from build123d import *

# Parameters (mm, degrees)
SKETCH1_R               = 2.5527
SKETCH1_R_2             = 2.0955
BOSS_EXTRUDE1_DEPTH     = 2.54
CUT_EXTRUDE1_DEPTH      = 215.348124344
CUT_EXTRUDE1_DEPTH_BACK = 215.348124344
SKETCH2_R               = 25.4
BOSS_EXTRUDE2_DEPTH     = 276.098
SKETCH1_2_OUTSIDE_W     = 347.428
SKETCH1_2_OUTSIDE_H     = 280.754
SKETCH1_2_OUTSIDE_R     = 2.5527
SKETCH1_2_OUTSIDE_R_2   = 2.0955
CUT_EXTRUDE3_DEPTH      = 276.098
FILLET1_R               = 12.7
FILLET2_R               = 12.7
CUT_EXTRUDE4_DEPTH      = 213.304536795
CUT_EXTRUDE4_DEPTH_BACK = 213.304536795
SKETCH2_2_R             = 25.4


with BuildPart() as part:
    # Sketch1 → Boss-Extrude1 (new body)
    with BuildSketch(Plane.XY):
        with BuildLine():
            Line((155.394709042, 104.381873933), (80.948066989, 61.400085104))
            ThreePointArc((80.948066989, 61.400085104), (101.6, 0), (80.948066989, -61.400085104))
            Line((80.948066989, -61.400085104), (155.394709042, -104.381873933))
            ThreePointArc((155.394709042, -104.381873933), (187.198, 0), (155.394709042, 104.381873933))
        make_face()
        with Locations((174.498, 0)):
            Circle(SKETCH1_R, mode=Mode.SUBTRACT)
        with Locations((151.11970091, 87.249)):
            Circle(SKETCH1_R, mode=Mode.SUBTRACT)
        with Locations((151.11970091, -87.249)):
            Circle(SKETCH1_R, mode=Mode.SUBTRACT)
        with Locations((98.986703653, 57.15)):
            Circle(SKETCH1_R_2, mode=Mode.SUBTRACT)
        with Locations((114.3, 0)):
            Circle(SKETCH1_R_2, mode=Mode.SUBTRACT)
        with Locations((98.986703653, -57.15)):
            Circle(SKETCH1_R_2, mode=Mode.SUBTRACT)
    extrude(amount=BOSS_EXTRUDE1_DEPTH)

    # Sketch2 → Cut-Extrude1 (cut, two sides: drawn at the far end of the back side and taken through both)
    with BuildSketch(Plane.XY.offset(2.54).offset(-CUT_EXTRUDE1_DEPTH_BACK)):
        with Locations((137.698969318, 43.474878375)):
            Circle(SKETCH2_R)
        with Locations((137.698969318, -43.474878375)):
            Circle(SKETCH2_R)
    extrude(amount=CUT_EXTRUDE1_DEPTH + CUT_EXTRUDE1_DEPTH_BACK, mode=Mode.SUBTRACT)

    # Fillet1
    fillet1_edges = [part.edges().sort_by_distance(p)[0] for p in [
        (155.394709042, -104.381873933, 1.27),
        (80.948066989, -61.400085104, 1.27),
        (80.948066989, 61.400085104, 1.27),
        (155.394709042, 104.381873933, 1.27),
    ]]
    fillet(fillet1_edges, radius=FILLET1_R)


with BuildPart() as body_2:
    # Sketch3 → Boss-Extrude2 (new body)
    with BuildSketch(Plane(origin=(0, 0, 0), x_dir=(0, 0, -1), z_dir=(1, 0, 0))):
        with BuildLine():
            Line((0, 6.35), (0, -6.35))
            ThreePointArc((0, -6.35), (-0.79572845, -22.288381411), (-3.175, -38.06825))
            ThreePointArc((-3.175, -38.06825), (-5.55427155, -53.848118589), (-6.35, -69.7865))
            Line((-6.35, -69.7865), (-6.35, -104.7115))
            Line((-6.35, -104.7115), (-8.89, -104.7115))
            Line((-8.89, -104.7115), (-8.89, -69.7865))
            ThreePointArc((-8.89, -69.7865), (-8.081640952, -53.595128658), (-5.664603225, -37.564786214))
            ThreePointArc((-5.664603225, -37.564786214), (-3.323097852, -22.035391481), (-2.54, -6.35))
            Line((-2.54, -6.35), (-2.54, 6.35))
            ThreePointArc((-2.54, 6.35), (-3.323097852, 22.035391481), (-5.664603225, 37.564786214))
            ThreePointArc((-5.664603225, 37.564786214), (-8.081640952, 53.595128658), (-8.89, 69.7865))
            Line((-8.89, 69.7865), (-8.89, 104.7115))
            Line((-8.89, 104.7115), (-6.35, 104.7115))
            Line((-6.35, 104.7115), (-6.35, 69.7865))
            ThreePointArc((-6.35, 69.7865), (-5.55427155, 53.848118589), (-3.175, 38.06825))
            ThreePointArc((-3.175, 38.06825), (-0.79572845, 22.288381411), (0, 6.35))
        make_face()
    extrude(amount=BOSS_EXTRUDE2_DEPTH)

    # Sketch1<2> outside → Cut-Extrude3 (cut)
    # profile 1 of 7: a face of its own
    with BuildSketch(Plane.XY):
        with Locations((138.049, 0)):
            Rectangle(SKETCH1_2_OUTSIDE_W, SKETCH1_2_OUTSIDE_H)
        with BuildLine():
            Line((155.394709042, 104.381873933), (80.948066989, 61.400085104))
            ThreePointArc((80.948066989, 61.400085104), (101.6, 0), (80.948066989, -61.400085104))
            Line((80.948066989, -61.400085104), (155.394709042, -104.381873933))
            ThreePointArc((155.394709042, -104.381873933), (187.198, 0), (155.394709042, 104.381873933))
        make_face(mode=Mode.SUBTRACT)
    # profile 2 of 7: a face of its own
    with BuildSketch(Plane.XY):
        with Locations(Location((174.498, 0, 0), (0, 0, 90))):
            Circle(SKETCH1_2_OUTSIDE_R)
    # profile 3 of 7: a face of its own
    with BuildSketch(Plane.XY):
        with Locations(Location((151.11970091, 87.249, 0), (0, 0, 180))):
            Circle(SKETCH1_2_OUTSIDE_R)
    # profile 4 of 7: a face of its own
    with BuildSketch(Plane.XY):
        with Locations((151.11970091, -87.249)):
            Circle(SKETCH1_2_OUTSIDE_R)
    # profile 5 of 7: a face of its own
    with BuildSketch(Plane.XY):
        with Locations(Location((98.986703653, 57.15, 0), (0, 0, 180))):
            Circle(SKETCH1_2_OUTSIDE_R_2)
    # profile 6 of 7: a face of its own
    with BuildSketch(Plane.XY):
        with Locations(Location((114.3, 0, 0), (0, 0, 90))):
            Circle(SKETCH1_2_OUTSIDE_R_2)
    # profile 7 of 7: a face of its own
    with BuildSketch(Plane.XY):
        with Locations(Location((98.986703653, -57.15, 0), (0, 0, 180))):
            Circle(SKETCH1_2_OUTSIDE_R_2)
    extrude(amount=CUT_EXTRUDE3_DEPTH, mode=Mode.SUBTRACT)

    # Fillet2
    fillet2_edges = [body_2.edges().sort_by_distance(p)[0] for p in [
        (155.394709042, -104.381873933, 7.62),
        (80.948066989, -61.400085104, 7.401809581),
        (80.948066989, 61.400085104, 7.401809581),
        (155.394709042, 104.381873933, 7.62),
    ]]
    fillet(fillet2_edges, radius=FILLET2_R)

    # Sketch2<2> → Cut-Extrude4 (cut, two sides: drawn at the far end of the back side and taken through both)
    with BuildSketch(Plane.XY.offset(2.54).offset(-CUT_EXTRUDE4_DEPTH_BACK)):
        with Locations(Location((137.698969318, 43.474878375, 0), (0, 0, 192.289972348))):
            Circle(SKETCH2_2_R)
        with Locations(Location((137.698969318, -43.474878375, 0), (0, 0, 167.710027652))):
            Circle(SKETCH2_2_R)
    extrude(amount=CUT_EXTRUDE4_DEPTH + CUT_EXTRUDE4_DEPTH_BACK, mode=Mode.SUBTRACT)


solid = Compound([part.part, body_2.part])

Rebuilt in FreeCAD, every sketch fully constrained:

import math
import FreeCAD as App
import Part
import Sketcher

V = App.Vector
Q = App.Units.Quantity


def edges_at(feature, points):
    """Names of the edges that pass closest to the given points."""
    edges = feature.Shape.Edges
    near = lambda p: min(range(len(edges)), key=lambda i: edges[i].distToShape(Part.Vertex(*p))[0])
    return sorted({f"Edge{near(p) + 1}" for p in points})

doc = App.newDocument("Part")
body = doc.addObject("PartDesign::Body", "Body")

sketch1 = body.newObject("Sketcher::SketchObject", "Sketch")
sketch1.AttachmentSupport = (doc.getObject("XY_Plane"), [""])
sketch1.MapMode = "FlatFace"
sketch1.addGeometry(Part.LineSegment(V(155.4, 104.4, 0), V(80.9, 61.4, 0)), False)
sketch1.addGeometry(Part.ArcOfCircle(Part.Circle(V(0, 0, 0), V(0, 0, 1), 101.6), math.radians(-37), math.radians(37)), False)
sketch1.addGeometry(Part.LineSegment(V(80.9, -61.4, 0), V(155.4, -104.4, 0)), False)
sketch1.addGeometry(Part.ArcOfCircle(Part.Circle(V(0, 0, 0), V(0, 0, 1), 187.2), math.radians(-34), math.radians(34)), False)
sketch1.addGeometry(Part.Circle(V(99, -57.1, 0), V(0, 0, 1), 2.1), False)
sketch1.addGeometry(Part.Circle(V(151.1, -87.2, 0), V(0, 0, 1), 2.6), False)
sketch1.addGeometry(Part.Circle(V(114.3, 0, 0), V(0, 0, 1), 2.1), False)
sketch1.addGeometry(Part.Circle(V(99, 57.1, 0), V(0, 0, 1), 2.1), False)
sketch1.addGeometry(Part.Circle(V(174.5, 0, 0), V(0, 0, 1), 2.6), False)
sketch1.addGeometry(Part.Circle(V(151.1, 87.2, 0), V(0, 0, 1), 2.6), False)
sketch1.addConstraint(Sketcher.Constraint("Coincident", 0, 2, 1, 2))
sketch1.addConstraint(Sketcher.Constraint("Coincident", 1, 1, 2, 1))
sketch1.addConstraint(Sketcher.Constraint("Coincident", 2, 2, 3, 1))
sketch1.addConstraint(Sketcher.Constraint("Coincident", 3, 2, 0, 1))
sketch1.addConstraint(Sketcher.Constraint("Coincident", 1, 3, -1, 1))
sketch1.addConstraint(Sketcher.Constraint("Coincident", 3, 3, -1, 1))
sketch1.addConstraint(Sketcher.Constraint("Equal", 4, 6))
sketch1.addConstraint(Sketcher.Constraint("Equal", 6, 7))
sketch1.addConstraint(Sketcher.Constraint("Equal", 5, 8))
sketch1.addConstraint(Sketcher.Constraint("Equal", 8, 9))
sketch1.addConstraint(Sketcher.Constraint("Symmetric", 4, 3, 7, 3, -1))
sketch1.addConstraint(Sketcher.Constraint("Symmetric", 5, 3, 9, 3, -1))
sketch1.addConstraint(Sketcher.Constraint("PointOnObject", 6, 3, -1))
sketch1.addConstraint(Sketcher.Constraint("PointOnObject", 8, 3, -1))
sketch1.addConstraint(Sketcher.Constraint("Vertical", 0, 2, 1, 1))
sketch1.addConstraint(Sketcher.Constraint("Vertical", 2, 2, 3, 2))
sketch1.addConstraint(Sketcher.Constraint("Radius", 1, Q("4 in")))
sketch1.addConstraint(Sketcher.Constraint("Radius", 3, Q("7.37 in")))
sketch1.addConstraint(Sketcher.Constraint("Diameter", 4, Q("0.165 in")))
sketch1.addConstraint(Sketcher.Constraint("Diameter", 5, Q("0.201 in")))
sketch1.addConstraint(Sketcher.Constraint("Angle", 0, Q("-150 deg")))
sketch1.addConstraint(Sketcher.Constraint("DistanceX", -1, 1, 6, 3, Q("4.5 in")))
sketch1.addConstraint(Sketcher.Constraint("DistanceY", 4, 3, 7, 3, Q("4.5 in")))
sketch1.addConstraint(Sketcher.Constraint("DistanceX", -1, 1, 8, 3, Q("6.87 in")))
sketch1.addConstraint(Sketcher.Constraint("DistanceY", 5, 3, 9, 3, Q("6.87 in")))
sketch1.addConstraint(Sketcher.Constraint("DistanceX", -1, 1, 5, 3, 151.119701))
sketch1.addConstraint(Sketcher.Constraint("DistanceX", -1, 1, 2, 2, 155.394709))
sketch1.addConstraint(Sketcher.Constraint("DistanceX", -1, 1, 4, 3, 98.986704))
pad1 = body.newObject("PartDesign::Pad", "Pad")
pad1.Profile = sketch1
pad1.Length = Q("0.1 in")

sketch2 = body.newObject("Sketcher::SketchObject", "Sketch001")
sketch2.AttachmentSupport = (doc.getObject("XY_Plane"), [""])
sketch2.MapMode = "FlatFace"
sketch2.AttachmentOffset = App.Placement(V(0, 0, 0.1 * 25.4), App.Rotation())
sketch2.addGeometry(Part.Circle(V(138, 43, 0), V(0, 0, 1), 25), False)
sketch2.addGeometry(Part.Circle(V(138, -43, 0), V(0, 0, 1), 25), False)
sketch2.addConstraint(Sketcher.Constraint("Equal", 0, 1))
sketch2.addConstraint(Sketcher.Constraint("Symmetric", 0, 3, 1, 3, -1))
sketch2.addConstraint(Sketcher.Constraint("Diameter", 0, Q("2 in")))
sketch2.addConstraint(Sketcher.Constraint("DistanceX", -1, 1, 0, 3, 137.698969))
sketch2.addConstraint(Sketcher.Constraint("DistanceY", -1, 1, 0, 3, 43.474878))
pocket1 = body.newObject("PartDesign::Pocket", "Pocket")
pocket1.Profile = sketch2
pocket1.Type = "ThroughAll"
pocket1.Midplane = True
doc.recompute()

fillet = body.newObject("PartDesign::Fillet", "Fillet")
fillet.Base = (pocket1, edges_at(pocket1, [
    (155.395, -104.382, 1.27),
    (80.948, -61.4, 1.27),
    (80.948, 61.4, 1.27),
    (155.395, 104.382, 1.27),
]))
fillet.Radius = Q("0.5 in")
body2 = doc.addObject("PartDesign::Body", "Body001")

sketch3 = body2.newObject("Sketcher::SketchObject", "Sketch002")
sketch3.AttachmentSupport = (doc.getObject("YZ_Plane001"), [""])
sketch3.MapMode = "FlatFace"
sketch3.addGeometry(Part.LineSegment(V(-6.3, 0, 0), V(6.3, 0, 0)), False)
sketch3.addGeometry(Part.ArcOfCircle(Part.Circle(V(6.3, 160, 0), V(0, 0, 1), 160), math.radians(-90), math.radians(-78.57)), False)
sketch3.addGeometry(Part.ArcOfCircle(Part.Circle(V(69.8, -153.7, 0), V(0, 0, 1), 160), math.radians(90), math.radians(101.43)), False)
sketch3.addGeometry(Part.LineSegment(V(69.8, 6.3, 0), V(104.7, 6.3, 0)), False)
sketch3.addGeometry(Part.LineSegment(V(104.7, 6.3, 0), V(104.7, 8.9, 0)), False)
sketch3.addGeometry(Part.LineSegment(V(104.7, 8.9, 0), V(69.8, 8.9, 0)), False)
sketch3.addGeometry(Part.ArcOfCircle(Part.Circle(V(69.8, -153.7, 0), V(0, 0, 1), 162.6), math.radians(90), math.radians(101.43)), False)
sketch3.addGeometry(Part.ArcOfCircle(Part.Circle(V(6.4, 160, 0), V(0, 0, 1), 157.5), math.radians(-90), math.radians(-78.57)), False)
sketch3.addGeometry(Part.LineSegment(V(6.3, 2.5, 0), V(-6.3, 2.5, 0)), False)
sketch3.addGeometry(Part.ArcOfCircle(Part.Circle(V(-6.4, 160, 0), V(0, 0, 1), 157.5), math.radians(-101.43), math.radians(-90)), False)
sketch3.addGeometry(Part.ArcOfCircle(Part.Circle(V(-69.8, -153.7, 0), V(0, 0, 1), 162.6), math.radians(78.57), math.radians(90)), False)
sketch3.addGeometry(Part.LineSegment(V(-69.8, 8.9, 0), V(-104.7, 8.9, 0)), False)
sketch3.addGeometry(Part.LineSegment(V(-104.7, 8.9, 0), V(-104.7, 6.3, 0)), False)
sketch3.addGeometry(Part.LineSegment(V(-104.7, 6.3, 0), V(-69.8, 6.3, 0)), False)
sketch3.addGeometry(Part.ArcOfCircle(Part.Circle(V(-69.8, -153.7, 0), V(0, 0, 1), 160), math.radians(78.57), math.radians(90)), False)
sketch3.addGeometry(Part.ArcOfCircle(Part.Circle(V(-6.3, 160, 0), V(0, 0, 1), 160), math.radians(-101.43), math.radians(-90)), False)
sketch3.addConstraint(Sketcher.Constraint("Tangent", 0, 2, 1, 1))
sketch3.addConstraint(Sketcher.Constraint("Tangent", 1, 2, 2, 2))
sketch3.addConstraint(Sketcher.Constraint("Tangent", 2, 1, 3, 1))
sketch3.addConstraint(Sketcher.Constraint("Coincident", 3, 2, 4, 1))
sketch3.addConstraint(Sketcher.Constraint("Coincident", 4, 2, 5, 1))
sketch3.addConstraint(Sketcher.Constraint("Tangent", 5, 2, 6, 1))
sketch3.addConstraint(Sketcher.Constraint("Tangent", 6, 2, 7, 2))
sketch3.addConstraint(Sketcher.Constraint("Tangent", 7, 1, 8, 1))
sketch3.addConstraint(Sketcher.Constraint("Tangent", 8, 2, 9, 2))
sketch3.addConstraint(Sketcher.Constraint("Tangent", 9, 1, 10, 1))
sketch3.addConstraint(Sketcher.Constraint("Tangent", 10, 2, 11, 1))
sketch3.addConstraint(Sketcher.Constraint("Coincident", 11, 2, 12, 1))
sketch3.addConstraint(Sketcher.Constraint("Coincident", 12, 2, 13, 1))
sketch3.addConstraint(Sketcher.Constraint("Tangent", 13, 2, 14, 2))
sketch3.addConstraint(Sketcher.Constraint("Tangent", 14, 1, 15, 1))
sketch3.addConstraint(Sketcher.Constraint("Tangent", 15, 2, 0, 1))
sketch3.addConstraint(Sketcher.Constraint("Horizontal", 0))
sketch3.addConstraint(Sketcher.Constraint("Horizontal", 3))
sketch3.addConstraint(Sketcher.Constraint("Vertical", 4))
sketch3.addConstraint(Sketcher.Constraint("Horizontal", 5))
sketch3.addConstraint(Sketcher.Constraint("Horizontal", 8))
sketch3.addConstraint(Sketcher.Constraint("Horizontal", 11))
sketch3.addConstraint(Sketcher.Constraint("Vertical", 12))
sketch3.addConstraint(Sketcher.Constraint("Horizontal", 13))
sketch3.addConstraint(Sketcher.Constraint("Coincident", 6, 3, 2, 3))
sketch3.addConstraint(Sketcher.Constraint("Coincident", 7, 3, 1, 3))
sketch3.addConstraint(Sketcher.Constraint("Coincident", 14, 3, 10, 3))
sketch3.addConstraint(Sketcher.Constraint("Coincident", 15, 3, 9, 3))
sketch3.addConstraint(Sketcher.Constraint("Equal", 1, 2))
sketch3.addConstraint(Sketcher.Constraint("Equal", 7, 9))
sketch3.addConstraint(Sketcher.Constraint("Equal", 6, 10))
sketch3.addConstraint(Sketcher.Constraint("Symmetric", 0, 2, 15, 2, -1, 1))
sketch3.addConstraint(Sketcher.Constraint("Symmetric", 4, 2, 11, 2, -2))
sketch3.addConstraint(Sketcher.Constraint("DistanceX", 0, 1, 0, 2, Q("0.5 in")))
sketch3.addConstraint(Sketcher.Constraint("DistanceY", 4, 1, 4, 2, Q("0.1 in")))
sketch3.addConstraint(Sketcher.Constraint("DistanceX", 3, 1, 3, 2, Q("1.375 in")))
sketch3.addConstraint(Sketcher.Constraint("DistanceY", -1, 1, 2, 1, Q("0.25 in")))
sketch3.addConstraint(Sketcher.Constraint("Radius", 1, 160.020159))
pad2 = body2.newObject("PartDesign::Pad", "Pad001")
pad2.Profile = sketch3
pad2.Length = Q("10.87 in")

sketch4 = body2.newObject("Sketcher::SketchObject", "Sketch003")
sketch4.AttachmentSupport = (doc.getObject("XY_Plane001"), [""])
sketch4.MapMode = "FlatFace"
sketch4.addGeometry(Part.LineSegment(V(-35.7, 140.4, 0), V(-35.7, -140.4, 0)), False)
sketch4.addGeometry(Part.LineSegment(V(-35.7, -140.4, 0), V(311.8, -140.4, 0)), False)
sketch4.addGeometry(Part.LineSegment(V(311.8, -140.4, 0), V(311.8, 140.4, 0)), False)
sketch4.addGeometry(Part.LineSegment(V(311.8, 140.4, 0), V(-35.7, 140.4, 0)), False)
sketch4.addGeometry(Part.LineSegment(V(80.9, 61.4, 0), V(155.4, 104.4, 0)), False)
sketch4.addGeometry(Part.ArcOfCircle(Part.Circle(V(0, 0, 0), V(0, 0, 1), 187.2), math.radians(-34), math.radians(34)), False)
sketch4.addGeometry(Part.LineSegment(V(155.4, -104.4, 0), V(80.9, -61.4, 0)), False)
sketch4.addGeometry(Part.ArcOfCircle(Part.Circle(V(0, 0, 0), V(0, 0, 1), 101.6), math.radians(-37), math.radians(37)), False)
sketch4.addGeometry(Part.Circle(V(174.5, 0, 0), V(0, 0, 1), 2.6), False)
sketch4.addGeometry(Part.Circle(V(151.1, 87.2, 0), V(0, 0, 1), 2.6), False)
sketch4.addGeometry(Part.Circle(V(151.1, -87.2, 0), V(0, 0, 1), 2.6), False)
sketch4.addGeometry(Part.Circle(V(99, 57.1, 0), V(0, 0, 1), 2.1), False)
sketch4.addGeometry(Part.Circle(V(114.3, 0, 0), V(0, 0, 1), 2.1), False)
sketch4.addGeometry(Part.Circle(V(99, -57.1, 0), V(0, 0, 1), 2.1), False)
sketch4.addConstraint(Sketcher.Constraint("Coincident", 0, 2, 1, 1))
sketch4.addConstraint(Sketcher.Constraint("Coincident", 1, 2, 2, 1))
sketch4.addConstraint(Sketcher.Constraint("Coincident", 2, 2, 3, 1))
sketch4.addConstraint(Sketcher.Constraint("Coincident", 3, 2, 0, 1))
sketch4.addConstraint(Sketcher.Constraint("Coincident", 4, 2, 5, 2))
sketch4.addConstraint(Sketcher.Constraint("Coincident", 5, 1, 6, 1))
sketch4.addConstraint(Sketcher.Constraint("Coincident", 6, 2, 7, 1))
sketch4.addConstraint(Sketcher.Constraint("Coincident", 7, 2, 4, 1))
sketch4.addConstraint(Sketcher.Constraint("Vertical", 0))
sketch4.addConstraint(Sketcher.Constraint("Horizontal", 1))
sketch4.addConstraint(Sketcher.Constraint("Vertical", 2))
sketch4.addConstraint(Sketcher.Constraint("Horizontal", 3))
sketch4.addConstraint(Sketcher.Constraint("Coincident", 5, 3, -1, 1))
sketch4.addConstraint(Sketcher.Constraint("Coincident", 7, 3, -1, 1))
sketch4.addConstraint(Sketcher.Constraint("Equal", 8, 9))
sketch4.addConstraint(Sketcher.Constraint("Equal", 9, 10))
sketch4.addConstraint(Sketcher.Constraint("Equal", 11, 12))
sketch4.addConstraint(Sketcher.Constraint("Equal", 12, 13))
sketch4.addConstraint(Sketcher.Constraint("Symmetric", 9, 3, 10, 3, -1))
sketch4.addConstraint(Sketcher.Constraint("Symmetric", 11, 3, 13, 3, -1))
sketch4.addConstraint(Sketcher.Constraint("PointOnObject", 8, 3, -1))
sketch4.addConstraint(Sketcher.Constraint("PointOnObject", 12, 3, -1))
sketch4.addConstraint(Sketcher.Constraint("Vertical", 4, 2, 5, 1))
sketch4.addConstraint(Sketcher.Constraint("Vertical", 6, 2, 7, 2))
sketch4.addConstraint(Sketcher.Constraint("Radius", 7, Q("4 in")))
sketch4.addConstraint(Sketcher.Constraint("Radius", 5, Q("7.37 in")))
sketch4.addConstraint(Sketcher.Constraint("Diameter", 8, Q("0.201 in")))
sketch4.addConstraint(Sketcher.Constraint("Diameter", 11, Q("0.165 in")))
sketch4.addConstraint(Sketcher.Constraint("Angle", 4, Q("30 deg")))
sketch4.addConstraint(Sketcher.Constraint("DistanceX", -1, 1, 12, 3, Q("4.5 in")))
sketch4.addConstraint(Sketcher.Constraint("DistanceY", 13, 3, 11, 3, Q("4.5 in")))
sketch4.addConstraint(Sketcher.Constraint("DistanceX", -1, 1, 8, 3, Q("6.87 in")))
sketch4.addConstraint(Sketcher.Constraint("DistanceY", 10, 3, 9, 3, Q("6.87 in")))
sketch4.addConstraint(Sketcher.Constraint("DistanceX", 1, 1, 1, 2, 347.428))
sketch4.addConstraint(Sketcher.Constraint("DistanceY", 0, 2, 0, 1, 280.754))
sketch4.addConstraint(Sketcher.Constraint("DistanceX", -1, 1, 9, 3, 151.119701))
sketch4.addConstraint(Sketcher.Constraint("DistanceX", 0, 2, -1, 1, 35.665))
sketch4.addConstraint(Sketcher.Constraint("DistanceY", 0, 2, -1, 1, 140.377))
sketch4.addConstraint(Sketcher.Constraint("DistanceX", -1, 1, 4, 2, 155.394709))
sketch4.addConstraint(Sketcher.Constraint("DistanceX", -1, 1, 11, 3, 98.986704))
pocket2 = body2.newObject("PartDesign::Pocket", "Pocket001")
pocket2.Profile = sketch4
pocket2.Length = Q("10.87 in")
pocket2.Reversed = True
doc.recompute()

fillet2 = body2.newObject("PartDesign::Fillet", "Fillet001")
fillet2.Base = (pocket2, edges_at(pocket2, [
    (155.395, -104.382, 7.62),
    (80.948, -61.4, 7.402),
    (80.948, 61.4, 7.402),
    (155.395, 104.382, 7.62),
]))
fillet2.Radius = Q("0.5 in")

sketch5 = body2.newObject("Sketcher::SketchObject", "Sketch004")
sketch5.AttachmentSupport = (doc.getObject("XY_Plane001"), [""])
sketch5.MapMode = "FlatFace"
sketch5.AttachmentOffset = App.Placement(V(0, 0, 0.1 * 25.4), App.Rotation())
sketch5.addGeometry(Part.Circle(V(138, 43, 0), V(0, 0, 1), 25), False)
sketch5.addGeometry(Part.Circle(V(138, -43, 0), V(0, 0, 1), 25), False)
sketch5.addConstraint(Sketcher.Constraint("Equal", 0, 1))
sketch5.addConstraint(Sketcher.Constraint("Symmetric", 0, 3, 1, 3, -1))
sketch5.addConstraint(Sketcher.Constraint("Diameter", 0, Q("2 in")))
sketch5.addConstraint(Sketcher.Constraint("DistanceX", -1, 1, 0, 3, 137.698969))
sketch5.addConstraint(Sketcher.Constraint("DistanceY", -1, 1, 0, 3, 43.474878))
pocket3 = body2.newObject("PartDesign::Pocket", "Pocket002")
pocket3.Profile = sketch5
pocket3.Type = "ThroughAll"
pocket3.Midplane = True

doc.recompute()
